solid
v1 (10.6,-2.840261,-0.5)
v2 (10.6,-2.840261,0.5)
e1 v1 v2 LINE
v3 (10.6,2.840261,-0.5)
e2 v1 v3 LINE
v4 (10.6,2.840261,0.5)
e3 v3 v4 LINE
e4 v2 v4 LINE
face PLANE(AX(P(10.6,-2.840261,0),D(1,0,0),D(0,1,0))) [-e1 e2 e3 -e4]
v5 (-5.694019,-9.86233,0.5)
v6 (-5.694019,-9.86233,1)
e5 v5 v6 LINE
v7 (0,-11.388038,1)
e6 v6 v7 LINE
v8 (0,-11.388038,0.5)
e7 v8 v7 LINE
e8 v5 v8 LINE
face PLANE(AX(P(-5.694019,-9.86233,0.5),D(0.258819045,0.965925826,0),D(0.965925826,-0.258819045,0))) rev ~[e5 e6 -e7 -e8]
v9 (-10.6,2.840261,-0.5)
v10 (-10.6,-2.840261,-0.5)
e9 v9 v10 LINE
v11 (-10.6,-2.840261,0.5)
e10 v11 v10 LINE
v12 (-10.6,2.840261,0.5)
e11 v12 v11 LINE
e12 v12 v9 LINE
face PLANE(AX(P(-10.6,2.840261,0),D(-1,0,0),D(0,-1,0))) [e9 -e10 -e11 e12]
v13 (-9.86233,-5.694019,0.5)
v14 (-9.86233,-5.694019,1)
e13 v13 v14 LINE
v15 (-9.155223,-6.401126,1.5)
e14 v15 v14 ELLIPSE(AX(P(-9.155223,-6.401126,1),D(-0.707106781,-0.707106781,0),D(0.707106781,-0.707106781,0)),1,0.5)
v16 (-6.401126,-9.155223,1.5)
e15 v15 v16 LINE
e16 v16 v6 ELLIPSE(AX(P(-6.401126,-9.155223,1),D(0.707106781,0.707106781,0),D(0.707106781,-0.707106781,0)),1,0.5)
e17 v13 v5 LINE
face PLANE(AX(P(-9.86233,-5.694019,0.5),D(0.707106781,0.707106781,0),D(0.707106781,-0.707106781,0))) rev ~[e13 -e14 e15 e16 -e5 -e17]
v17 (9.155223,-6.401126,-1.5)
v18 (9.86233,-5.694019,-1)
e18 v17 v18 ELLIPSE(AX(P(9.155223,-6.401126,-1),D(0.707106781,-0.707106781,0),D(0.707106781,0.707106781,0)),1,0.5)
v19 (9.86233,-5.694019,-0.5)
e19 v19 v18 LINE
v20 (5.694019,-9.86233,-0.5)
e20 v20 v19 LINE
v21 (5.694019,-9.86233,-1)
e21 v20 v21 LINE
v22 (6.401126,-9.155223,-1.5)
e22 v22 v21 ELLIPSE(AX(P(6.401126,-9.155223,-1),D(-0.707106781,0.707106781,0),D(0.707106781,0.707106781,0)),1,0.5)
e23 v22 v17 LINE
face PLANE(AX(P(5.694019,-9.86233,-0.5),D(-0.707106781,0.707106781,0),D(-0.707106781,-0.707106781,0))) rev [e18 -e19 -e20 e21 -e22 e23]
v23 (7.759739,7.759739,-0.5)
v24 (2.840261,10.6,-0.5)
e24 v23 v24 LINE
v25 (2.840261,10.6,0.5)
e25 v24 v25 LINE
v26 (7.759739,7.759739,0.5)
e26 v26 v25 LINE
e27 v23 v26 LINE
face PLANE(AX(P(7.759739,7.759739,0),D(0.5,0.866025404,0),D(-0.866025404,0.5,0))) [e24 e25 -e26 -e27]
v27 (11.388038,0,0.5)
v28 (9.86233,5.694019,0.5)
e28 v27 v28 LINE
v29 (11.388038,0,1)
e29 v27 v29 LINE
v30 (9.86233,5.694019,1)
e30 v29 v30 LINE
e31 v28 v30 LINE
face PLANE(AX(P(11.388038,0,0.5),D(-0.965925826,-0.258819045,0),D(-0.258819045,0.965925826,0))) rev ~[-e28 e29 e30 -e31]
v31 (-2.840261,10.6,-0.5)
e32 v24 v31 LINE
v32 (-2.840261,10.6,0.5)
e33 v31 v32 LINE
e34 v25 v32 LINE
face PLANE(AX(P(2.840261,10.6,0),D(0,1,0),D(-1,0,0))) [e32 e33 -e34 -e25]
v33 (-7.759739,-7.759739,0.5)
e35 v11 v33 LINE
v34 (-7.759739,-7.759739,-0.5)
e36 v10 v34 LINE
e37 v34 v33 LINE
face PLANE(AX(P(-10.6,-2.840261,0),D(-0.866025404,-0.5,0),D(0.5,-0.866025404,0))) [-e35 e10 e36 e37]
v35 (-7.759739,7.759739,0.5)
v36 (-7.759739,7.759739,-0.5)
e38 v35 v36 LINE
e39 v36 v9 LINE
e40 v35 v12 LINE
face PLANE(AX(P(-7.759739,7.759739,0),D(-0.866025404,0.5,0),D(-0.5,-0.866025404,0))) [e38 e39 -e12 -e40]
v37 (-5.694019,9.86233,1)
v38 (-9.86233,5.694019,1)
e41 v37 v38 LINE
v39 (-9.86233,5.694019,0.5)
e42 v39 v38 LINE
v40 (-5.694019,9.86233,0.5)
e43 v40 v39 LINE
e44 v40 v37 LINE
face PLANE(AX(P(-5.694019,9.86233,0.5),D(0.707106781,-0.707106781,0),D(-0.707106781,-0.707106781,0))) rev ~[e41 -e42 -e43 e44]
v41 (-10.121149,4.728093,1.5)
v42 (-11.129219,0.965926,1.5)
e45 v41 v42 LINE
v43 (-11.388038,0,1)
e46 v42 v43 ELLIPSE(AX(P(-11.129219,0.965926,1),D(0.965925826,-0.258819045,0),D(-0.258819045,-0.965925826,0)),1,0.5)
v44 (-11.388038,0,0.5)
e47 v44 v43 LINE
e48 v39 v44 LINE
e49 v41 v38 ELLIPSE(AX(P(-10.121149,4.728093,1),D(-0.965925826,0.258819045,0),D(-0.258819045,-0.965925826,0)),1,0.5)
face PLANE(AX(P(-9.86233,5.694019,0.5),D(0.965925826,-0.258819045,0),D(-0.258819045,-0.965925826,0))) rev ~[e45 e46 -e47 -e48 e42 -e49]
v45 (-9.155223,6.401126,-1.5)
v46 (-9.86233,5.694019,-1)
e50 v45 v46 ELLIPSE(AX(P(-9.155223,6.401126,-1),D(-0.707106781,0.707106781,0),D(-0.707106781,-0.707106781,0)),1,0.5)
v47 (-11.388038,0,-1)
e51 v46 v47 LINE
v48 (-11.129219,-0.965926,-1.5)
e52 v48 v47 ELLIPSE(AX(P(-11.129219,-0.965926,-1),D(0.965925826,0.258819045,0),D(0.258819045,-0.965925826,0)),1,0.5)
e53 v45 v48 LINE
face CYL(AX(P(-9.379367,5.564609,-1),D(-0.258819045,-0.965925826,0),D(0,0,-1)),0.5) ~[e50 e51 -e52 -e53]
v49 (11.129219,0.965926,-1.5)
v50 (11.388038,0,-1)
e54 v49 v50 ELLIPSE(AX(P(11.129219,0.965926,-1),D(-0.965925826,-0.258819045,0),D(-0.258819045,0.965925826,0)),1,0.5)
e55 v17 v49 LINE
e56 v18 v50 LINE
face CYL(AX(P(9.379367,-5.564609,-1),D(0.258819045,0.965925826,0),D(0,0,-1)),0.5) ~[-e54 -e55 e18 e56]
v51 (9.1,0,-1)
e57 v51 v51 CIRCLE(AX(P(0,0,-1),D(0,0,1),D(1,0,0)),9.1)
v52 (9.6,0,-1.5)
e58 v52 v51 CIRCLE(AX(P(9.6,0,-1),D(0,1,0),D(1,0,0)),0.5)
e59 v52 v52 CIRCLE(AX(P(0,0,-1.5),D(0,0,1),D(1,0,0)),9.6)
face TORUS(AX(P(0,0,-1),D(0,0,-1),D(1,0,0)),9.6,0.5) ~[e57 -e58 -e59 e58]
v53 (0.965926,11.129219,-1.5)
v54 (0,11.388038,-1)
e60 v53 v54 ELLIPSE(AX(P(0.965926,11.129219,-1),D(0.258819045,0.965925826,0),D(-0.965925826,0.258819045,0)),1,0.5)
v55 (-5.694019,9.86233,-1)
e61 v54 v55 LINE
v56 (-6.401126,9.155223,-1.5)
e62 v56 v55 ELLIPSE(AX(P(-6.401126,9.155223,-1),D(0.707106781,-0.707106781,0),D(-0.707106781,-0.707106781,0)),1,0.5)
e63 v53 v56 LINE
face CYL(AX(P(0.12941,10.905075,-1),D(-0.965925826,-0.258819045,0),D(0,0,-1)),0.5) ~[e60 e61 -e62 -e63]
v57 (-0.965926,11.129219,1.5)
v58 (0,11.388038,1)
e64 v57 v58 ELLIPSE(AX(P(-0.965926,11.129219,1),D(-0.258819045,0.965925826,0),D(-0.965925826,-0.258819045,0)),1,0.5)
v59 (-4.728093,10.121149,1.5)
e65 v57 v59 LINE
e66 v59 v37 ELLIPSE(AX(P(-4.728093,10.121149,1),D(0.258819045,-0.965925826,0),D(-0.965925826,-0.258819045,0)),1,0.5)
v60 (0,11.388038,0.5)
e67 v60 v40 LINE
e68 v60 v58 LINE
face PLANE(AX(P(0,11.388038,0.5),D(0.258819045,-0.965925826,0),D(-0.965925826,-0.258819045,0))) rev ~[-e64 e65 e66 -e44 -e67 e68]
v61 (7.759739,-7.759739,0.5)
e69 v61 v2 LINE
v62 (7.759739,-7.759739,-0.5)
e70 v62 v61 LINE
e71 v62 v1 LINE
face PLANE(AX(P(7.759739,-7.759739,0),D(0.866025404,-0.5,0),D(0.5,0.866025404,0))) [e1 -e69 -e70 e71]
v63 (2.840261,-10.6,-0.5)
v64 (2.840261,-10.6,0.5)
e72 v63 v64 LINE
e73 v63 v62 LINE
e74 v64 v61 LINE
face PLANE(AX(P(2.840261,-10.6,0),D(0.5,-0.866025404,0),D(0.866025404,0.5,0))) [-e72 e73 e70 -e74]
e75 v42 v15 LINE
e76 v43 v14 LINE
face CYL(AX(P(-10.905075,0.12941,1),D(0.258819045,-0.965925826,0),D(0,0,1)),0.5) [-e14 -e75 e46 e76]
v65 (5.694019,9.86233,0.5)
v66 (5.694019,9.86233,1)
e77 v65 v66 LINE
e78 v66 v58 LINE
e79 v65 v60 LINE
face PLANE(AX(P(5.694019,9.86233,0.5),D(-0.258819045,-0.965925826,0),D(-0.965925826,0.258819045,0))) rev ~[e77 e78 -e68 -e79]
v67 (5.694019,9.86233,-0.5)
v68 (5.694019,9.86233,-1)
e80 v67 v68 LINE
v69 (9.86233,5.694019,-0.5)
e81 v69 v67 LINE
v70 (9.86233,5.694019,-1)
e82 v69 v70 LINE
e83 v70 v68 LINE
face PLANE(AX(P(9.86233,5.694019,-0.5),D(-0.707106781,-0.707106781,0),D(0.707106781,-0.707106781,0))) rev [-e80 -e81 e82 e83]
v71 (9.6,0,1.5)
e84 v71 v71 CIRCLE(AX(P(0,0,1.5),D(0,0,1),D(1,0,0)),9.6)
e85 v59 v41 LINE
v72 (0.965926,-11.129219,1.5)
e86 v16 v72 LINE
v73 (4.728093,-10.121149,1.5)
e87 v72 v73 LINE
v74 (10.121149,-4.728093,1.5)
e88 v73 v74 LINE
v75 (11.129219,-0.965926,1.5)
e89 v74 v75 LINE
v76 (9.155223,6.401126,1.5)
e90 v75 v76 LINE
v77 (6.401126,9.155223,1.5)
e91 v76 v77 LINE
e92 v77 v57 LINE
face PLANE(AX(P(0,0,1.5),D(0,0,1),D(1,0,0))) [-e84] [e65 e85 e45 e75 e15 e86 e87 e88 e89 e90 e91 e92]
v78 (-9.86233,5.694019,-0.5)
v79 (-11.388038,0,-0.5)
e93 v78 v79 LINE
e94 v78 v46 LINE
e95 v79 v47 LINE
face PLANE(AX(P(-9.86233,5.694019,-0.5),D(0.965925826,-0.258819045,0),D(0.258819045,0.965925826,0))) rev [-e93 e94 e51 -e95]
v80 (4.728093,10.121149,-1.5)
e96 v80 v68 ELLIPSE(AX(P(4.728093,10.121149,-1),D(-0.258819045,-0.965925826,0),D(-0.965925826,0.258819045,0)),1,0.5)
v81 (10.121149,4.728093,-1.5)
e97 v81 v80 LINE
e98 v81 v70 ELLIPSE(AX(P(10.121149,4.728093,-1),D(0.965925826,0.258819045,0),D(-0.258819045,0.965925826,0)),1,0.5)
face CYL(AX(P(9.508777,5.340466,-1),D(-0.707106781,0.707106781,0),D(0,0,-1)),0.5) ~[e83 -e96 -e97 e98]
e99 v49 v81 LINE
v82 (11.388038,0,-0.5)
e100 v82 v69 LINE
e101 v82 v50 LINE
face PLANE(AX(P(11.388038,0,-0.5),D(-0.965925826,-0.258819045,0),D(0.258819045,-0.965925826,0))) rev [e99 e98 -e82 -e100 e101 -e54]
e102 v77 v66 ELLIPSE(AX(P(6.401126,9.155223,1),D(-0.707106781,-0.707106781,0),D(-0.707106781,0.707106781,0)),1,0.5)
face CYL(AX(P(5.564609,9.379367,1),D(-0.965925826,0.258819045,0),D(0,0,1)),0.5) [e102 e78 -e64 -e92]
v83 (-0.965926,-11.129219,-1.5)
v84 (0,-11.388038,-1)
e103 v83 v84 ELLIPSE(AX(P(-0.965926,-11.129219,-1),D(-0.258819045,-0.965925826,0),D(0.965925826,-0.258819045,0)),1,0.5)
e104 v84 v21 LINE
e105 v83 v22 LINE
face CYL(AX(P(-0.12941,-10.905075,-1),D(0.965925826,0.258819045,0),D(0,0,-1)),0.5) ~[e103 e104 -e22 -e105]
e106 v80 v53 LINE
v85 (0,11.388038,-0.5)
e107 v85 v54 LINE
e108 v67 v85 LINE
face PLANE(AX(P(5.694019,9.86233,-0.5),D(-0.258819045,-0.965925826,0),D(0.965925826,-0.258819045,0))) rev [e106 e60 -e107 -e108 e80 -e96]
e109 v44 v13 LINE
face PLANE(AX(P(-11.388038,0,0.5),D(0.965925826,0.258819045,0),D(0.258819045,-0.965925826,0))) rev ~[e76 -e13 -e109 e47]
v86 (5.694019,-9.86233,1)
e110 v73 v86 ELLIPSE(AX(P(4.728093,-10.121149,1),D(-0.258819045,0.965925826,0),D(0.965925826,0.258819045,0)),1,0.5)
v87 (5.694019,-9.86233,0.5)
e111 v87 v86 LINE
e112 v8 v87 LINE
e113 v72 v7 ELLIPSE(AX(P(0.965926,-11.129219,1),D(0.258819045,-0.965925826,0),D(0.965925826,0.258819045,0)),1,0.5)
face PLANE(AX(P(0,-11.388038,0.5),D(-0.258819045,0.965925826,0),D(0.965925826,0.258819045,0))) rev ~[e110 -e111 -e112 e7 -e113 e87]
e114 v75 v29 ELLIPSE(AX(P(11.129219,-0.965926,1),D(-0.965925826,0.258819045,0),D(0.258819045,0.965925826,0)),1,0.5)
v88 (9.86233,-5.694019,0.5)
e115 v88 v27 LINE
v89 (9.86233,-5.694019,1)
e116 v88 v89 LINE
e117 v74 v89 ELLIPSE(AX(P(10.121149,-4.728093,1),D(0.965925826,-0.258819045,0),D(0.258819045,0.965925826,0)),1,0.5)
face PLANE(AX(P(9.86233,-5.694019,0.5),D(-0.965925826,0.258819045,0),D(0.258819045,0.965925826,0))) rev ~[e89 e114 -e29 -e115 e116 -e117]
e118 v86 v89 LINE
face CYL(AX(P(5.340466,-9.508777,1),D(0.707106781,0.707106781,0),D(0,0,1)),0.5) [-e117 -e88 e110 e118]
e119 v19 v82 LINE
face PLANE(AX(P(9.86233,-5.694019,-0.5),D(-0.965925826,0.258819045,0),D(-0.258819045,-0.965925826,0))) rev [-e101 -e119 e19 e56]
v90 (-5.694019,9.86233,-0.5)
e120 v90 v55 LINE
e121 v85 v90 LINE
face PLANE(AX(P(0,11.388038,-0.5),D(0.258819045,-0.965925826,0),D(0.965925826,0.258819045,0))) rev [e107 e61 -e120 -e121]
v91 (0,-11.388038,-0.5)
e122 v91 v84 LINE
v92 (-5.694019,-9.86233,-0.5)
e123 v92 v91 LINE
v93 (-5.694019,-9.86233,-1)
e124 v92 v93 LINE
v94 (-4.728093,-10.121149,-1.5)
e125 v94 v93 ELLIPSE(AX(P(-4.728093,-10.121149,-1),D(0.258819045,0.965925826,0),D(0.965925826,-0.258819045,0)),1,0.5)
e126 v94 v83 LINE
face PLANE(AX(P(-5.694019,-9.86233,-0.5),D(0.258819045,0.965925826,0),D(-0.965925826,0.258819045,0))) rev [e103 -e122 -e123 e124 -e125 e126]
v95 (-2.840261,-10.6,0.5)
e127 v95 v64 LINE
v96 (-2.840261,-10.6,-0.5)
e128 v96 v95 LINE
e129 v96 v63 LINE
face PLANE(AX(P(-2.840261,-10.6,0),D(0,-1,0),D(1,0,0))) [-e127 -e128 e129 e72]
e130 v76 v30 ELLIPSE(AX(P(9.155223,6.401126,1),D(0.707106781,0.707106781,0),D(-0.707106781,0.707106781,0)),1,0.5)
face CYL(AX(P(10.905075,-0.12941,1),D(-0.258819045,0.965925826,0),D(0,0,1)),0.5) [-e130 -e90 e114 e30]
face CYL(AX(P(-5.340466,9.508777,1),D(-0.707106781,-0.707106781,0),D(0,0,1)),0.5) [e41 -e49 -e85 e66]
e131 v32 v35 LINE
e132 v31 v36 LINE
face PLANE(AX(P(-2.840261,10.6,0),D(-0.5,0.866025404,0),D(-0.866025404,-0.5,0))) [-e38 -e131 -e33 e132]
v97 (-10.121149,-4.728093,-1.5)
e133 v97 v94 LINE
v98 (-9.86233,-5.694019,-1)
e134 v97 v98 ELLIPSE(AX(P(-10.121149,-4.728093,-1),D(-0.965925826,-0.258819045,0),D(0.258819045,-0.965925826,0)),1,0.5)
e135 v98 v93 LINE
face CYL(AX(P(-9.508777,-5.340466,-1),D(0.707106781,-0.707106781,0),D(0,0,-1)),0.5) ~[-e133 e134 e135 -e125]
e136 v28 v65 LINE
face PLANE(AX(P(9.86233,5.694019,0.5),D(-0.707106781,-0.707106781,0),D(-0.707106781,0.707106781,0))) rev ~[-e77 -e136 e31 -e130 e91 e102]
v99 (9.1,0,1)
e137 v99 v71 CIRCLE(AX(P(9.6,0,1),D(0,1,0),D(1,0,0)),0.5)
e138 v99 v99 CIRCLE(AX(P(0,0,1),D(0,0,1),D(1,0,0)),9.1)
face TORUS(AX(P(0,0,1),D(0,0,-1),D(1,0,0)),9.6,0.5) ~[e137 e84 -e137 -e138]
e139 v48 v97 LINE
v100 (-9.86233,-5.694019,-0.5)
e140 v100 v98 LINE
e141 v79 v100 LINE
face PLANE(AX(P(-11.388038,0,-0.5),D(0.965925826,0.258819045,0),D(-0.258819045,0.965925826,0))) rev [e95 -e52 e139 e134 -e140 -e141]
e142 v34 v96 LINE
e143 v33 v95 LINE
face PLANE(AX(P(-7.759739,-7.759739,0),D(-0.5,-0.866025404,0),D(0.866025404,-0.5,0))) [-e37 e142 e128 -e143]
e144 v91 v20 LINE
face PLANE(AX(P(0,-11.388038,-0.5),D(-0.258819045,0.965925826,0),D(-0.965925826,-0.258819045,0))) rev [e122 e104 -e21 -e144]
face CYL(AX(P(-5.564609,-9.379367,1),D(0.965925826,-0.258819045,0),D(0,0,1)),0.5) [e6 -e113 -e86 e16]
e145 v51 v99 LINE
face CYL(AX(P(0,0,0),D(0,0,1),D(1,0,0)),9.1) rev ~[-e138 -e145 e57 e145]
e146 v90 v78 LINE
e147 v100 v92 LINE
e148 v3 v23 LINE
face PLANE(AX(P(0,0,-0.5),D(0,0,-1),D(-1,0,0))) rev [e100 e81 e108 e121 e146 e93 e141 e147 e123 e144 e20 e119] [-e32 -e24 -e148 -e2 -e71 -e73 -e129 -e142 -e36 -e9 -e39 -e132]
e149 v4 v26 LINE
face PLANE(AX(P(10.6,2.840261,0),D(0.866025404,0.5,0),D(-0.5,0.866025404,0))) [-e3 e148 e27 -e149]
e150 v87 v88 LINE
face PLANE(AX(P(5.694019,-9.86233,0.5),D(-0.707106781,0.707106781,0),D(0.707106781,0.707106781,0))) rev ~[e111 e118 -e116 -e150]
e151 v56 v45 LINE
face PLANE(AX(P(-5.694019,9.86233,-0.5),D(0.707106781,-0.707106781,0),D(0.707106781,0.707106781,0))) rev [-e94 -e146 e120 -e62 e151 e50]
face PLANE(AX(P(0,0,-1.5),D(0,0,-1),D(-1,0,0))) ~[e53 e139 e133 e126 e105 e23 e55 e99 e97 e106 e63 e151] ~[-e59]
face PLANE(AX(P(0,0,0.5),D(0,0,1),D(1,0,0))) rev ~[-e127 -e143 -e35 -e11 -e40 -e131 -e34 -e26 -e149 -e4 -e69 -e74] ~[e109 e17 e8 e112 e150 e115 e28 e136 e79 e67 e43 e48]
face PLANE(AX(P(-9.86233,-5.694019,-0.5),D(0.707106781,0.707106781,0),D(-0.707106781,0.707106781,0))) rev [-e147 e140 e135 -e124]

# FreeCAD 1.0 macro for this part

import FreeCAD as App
import Part
import Sketcher

V = App.Vector
Q = App.Units.Quantity


def edges_at(feature, points):
    """Names of the edges that pass closest to the given points."""
    edges = feature.Shape.Edges
    near = lambda p: min(range(len(edges)), key=lambda i: edges[i].distToShape(Part.Vertex(*p))[0])
    return sorted({f"Edge{near(p) + 1}" for p in points})

doc = App.newDocument("Part")
body = doc.addObject("PartDesign::Body", "Body")

sketch1 = body.newObject("Sketcher::SketchObject", "Sketch")
sketch1.AttachmentSupport = (doc.getObject("XY_Plane"), [""])
sketch1.MapMode = "FlatFace"
sketch1.addGeometry(Part.LineSegment(V(-10.6, -2.840261, 0), V(-7.759739, -7.759739, 0)), False)
sketch1.addGeometry(Part.LineSegment(V(-7.759739, -7.759739, 0), V(-2.840261, -10.6, 0)), False)
sketch1.addGeometry(Part.LineSegment(V(-2.840261, -10.6, 0), V(2.840261, -10.6, 0)), False)
sketch1.addGeometry(Part.LineSegment(V(2.840261, -10.6, 0), V(7.759739, -7.759739, 0)), False)
sketch1.addGeometry(Part.LineSegment(V(7.759739, -7.759739, 0), V(10.6, -2.840261, 0)), False)
sketch1.addGeometry(Part.LineSegment(V(10.6, -2.840261, 0), V(10.6, 2.840261, 0)), False)
sketch1.addGeometry(Part.LineSegment(V(10.6, 2.840261, 0), V(7.759739, 7.759739, 0)), False)
sketch1.addGeometry(Part.LineSegment(V(7.759739, 7.759739, 0), V(2.840261, 10.6, 0)), False)
sketch1.addGeometry(Part.LineSegment(V(2.840261, 10.6, 0), V(-2.840261, 10.6, 0)), False)
sketch1.addGeometry(Part.LineSegment(V(-2.840261, 10.6, 0), V(-7.759739, 7.759739, 0)), False)
sketch1.addGeometry(Part.LineSegment(V(-7.759739, 7.759739, 0), V(-10.6, 2.840261, 0)), False)
sketch1.addGeometry(Part.LineSegment(V(-10.6, 2.840261, 0), V(-10.6, -2.840261, 0)), False)
sketch1.addConstraint(Sketcher.Constraint("Coincident", 0, 2, 1, 1))
sketch1.addConstraint(Sketcher.Constraint("Coincident", 1, 2, 2, 1))
sketch1.addConstraint(Sketcher.Constraint("Coincident", 2, 2, 3, 1))
sketch1.addConstraint(Sketcher.Constraint("Coincident", 3, 2, 4, 1))
sketch1.addConstraint(Sketcher.Constraint("Coincident", 4, 2, 5, 1))
sketch1.addConstraint(Sketcher.Constraint("Coincident", 5, 2, 6, 1))
sketch1.addConstraint(Sketcher.Constraint("Coincident", 6, 2, 7, 1))
sketch1.addConstraint(Sketcher.Constraint("Coincident", 7, 2, 8, 1))
sketch1.addConstraint(Sketcher.Constraint("Coincident", 8, 2, 9, 1))
sketch1.addConstraint(Sketcher.Constraint("Coincident", 9, 2, 10, 1))
sketch1.addConstraint(Sketcher.Constraint("Coincident", 10, 2, 11, 1))
sketch1.addConstraint(Sketcher.Constraint("Coincident", 11, 2, 0, 1))
sketch1.addConstraint(Sketcher.Constraint("Horizontal", 2))
sketch1.addConstraint(Sketcher.Constraint("Vertical", 5))
sketch1.addConstraint(Sketcher.Constraint("Horizontal", 8))
sketch1.addConstraint(Sketcher.Constraint("Vertical", 11))
sketch1.addConstraint(Sketcher.Constraint("Symmetric", 0, 2, 6, 2, -1, 1))
sketch1.addConstraint(Sketcher.Constraint("Symmetric", 1, 2, 7, 2, -1, 1))
sketch1.addConstraint(Sketcher.Constraint("Symmetric", 3, 2, 9, 2, -1, 1))
sketch1.addConstraint(Sketcher.Constraint("Symmetric", 4, 2, 10, 2, -1, 1))
sketch1.addConstraint(Sketcher.Constraint("Symmetric", 0, 2, 3, 2, -2))
sketch1.addConstraint(Sketcher.Constraint("Perpendicular", 0, 3))
sketch1.addConstraint(Sketcher.Constraint("Perpendicular", 1, 4))
sketch1.addConstraint(Sketcher.Constraint("Perpendicular", 3, 6))
sketch1.addConstraint(Sketcher.Constraint("Perpendicular", 6, 9))
sketch1.addConstraint(Sketcher.Constraint("Horizontal", 5, 2, 10, 2))
sketch1.addConstraint(Sketcher.Constraint("Equal", 8, 5))
sketch1.addConstraint(Sketcher.Constraint("Equal", 0, 1))
sketch1.addConstraint(Sketcher.Constraint("Angle", 0, Q("-60 deg")))
sketch1.addConstraint(Sketcher.Constraint("DistanceY", 1, 2, -1, 1, 10.6))
sketch1.addConstraint(Sketcher.Constraint("DistanceX", 0, 2, 2, 2, 10.6))
pad1 = body.newObject("PartDesign::Pad", "Pad")
pad1.Profile = sketch1
pad1.Length = 1
pad1.Midplane = True

sketch2 = body.newObject("Sketcher::SketchObject", "Sketch001")
sketch2.AttachmentSupport = (doc.getObject("XY_Plane"), [""])
sketch2.MapMode = "FlatFace"
sketch2.AttachmentOffset = App.Placement(V(0, 0, 0.5), App.Rotation())
sketch2.addGeometry(Part.LineSegment(V(-9.86233, 5.694019, 0), V(-11.388038, 0, 0)), False)
sketch2.addGeometry(Part.LineSegment(V(-11.388038, 0, 0), V(-9.86233, -5.694019, 0)), False)
sketch2.addGeometry(Part.LineSegment(V(-9.86233, -5.694019, 0), V(-5.694019, -9.86233, 0)), False)
sketch2.addGeometry(Part.LineSegment(V(-5.694019, -9.86233, 0), V(0, -11.388038, 0)), False)
sketch2.addGeometry(Part.LineSegment(V(0, -11.388038, 0), V(5.694019, -9.86233, 0)), False)
sketch2.addGeometry(Part.LineSegment(V(5.694019, -9.86233, 0), V(9.86233, -5.694019, 0)), False)
sketch2.addGeometry(Part.LineSegment(V(9.86233, -5.694019, 0), V(11.388038, 0, 0)), False)
sketch2.addGeometry(Part.LineSegment(V(11.388038, 0, 0), V(9.86233, 5.694019, 0)), False)
sketch2.addGeometry(Part.LineSegment(V(9.86233, 5.694019, 0), V(5.694019, 9.86233, 0)), False)
sketch2.addGeometry(Part.LineSegment(V(5.694019, 9.86233, 0), V(0, 11.388038, 0)), False)
sketch2.addGeometry(Part.LineSegment(V(0, 11.388038, 0), V(-5.694019, 9.86233, 0)), False)
sketch2.addGeometry(Part.LineSegment(V(-5.694019, 9.86233, 0), V(-9.86233, 5.694019, 0)), False)
sketch2.addConstraint(Sketcher.Constraint("Coincident", 0, 2, 1, 1))
sketch2.addConstraint(Sketcher.Constraint("Coincident", 1, 2, 2, 1))
sketch2.addConstraint(Sketcher.Constraint("Coincident", 2, 2, 3, 1))
sketch2.addConstraint(Sketcher.Constraint("Coincident", 3, 2, 4, 1))
sketch2.addConstraint(Sketcher.Constraint("Coincident", 4, 2, 5, 1))
sketch2.addConstraint(Sketcher.Constraint("Coincident", 5, 2, 6, 1))
sketch2.addConstraint(Sketcher.Constraint("Coincident", 6, 2, 7, 1))
sketch2.addConstraint(Sketcher.Constraint("Coincident", 7, 2, 8, 1))
sketch2.addConstraint(Sketcher.Constraint("Coincident", 8, 2, 9, 1))
sketch2.addConstraint(Sketcher.Constraint("Coincident", 9, 2, 10, 1))
sketch2.addConstraint(Sketcher.Constraint("Coincident", 10, 2, 11, 1))
sketch2.addConstraint(Sketcher.Constraint("Coincident", 11, 2, 0, 1))
sketch2.addConstraint(Sketcher.Constraint("Symmetric", 0, 2, 6, 2, -1, 1))
sketch2.addConstraint(Sketcher.Constraint("Symmetric", 1, 2, 7, 2, -1, 1))
sketch2.addConstraint(Sketcher.Constraint("Symmetric", 2, 2, 8, 2, -1, 1))
sketch2.addConstraint(Sketcher.Constraint("Symmetric", 3, 2, 9, 2, -1, 1))
sketch2.addConstraint(Sketcher.Constraint("Symmetric", 4, 2, 10, 2, -1, 1))
sketch2.addConstraint(Sketcher.Constraint("Symmetric", 5, 2, 11, 2, -1, 1))
sketch2.addConstraint(Sketcher.Constraint("Symmetric", 2, 2, 4, 2, -2))
sketch2.addConstraint(Sketcher.Constraint("Symmetric", 1, 2, 5, 2, -2))
sketch2.addConstraint(Sketcher.Constraint("PointOnObject", 0, 2, -1))
sketch2.addConstraint(Sketcher.Constraint("PointOnObject", 3, 2, -2))
sketch2.addConstraint(Sketcher.Constraint("Perpendicular", 0, 3))
sketch2.addConstraint(Sketcher.Constraint("Perpendicular", 2, 5))
sketch2.addConstraint(Sketcher.Constraint("Equal", 1, 2))
sketch2.addConstraint(Sketcher.Constraint("Equal", 2, 3))
sketch2.addConstraint(Sketcher.Constraint("Angle", 0, Q("-105 deg")))
sketch2.addConstraint(Sketcher.Constraint("DistanceX", 1, 2, -1, 1, 9.86233))
pad2 = body.newObject("PartDesign::Pad", "Pad001")
pad2.Profile = sketch2
pad2.Length = 1
body2 = doc.addObject("PartDesign::Body", "Body001")
doc.recompute()

body2.BaseFeature = body
doc.recompute()

mirroring = doc.addObject("Part::Mirroring", "Mirroring")
mirroring.Source = body
mirroring.Base = V(0, 0, 0)
mirroring.Normal = V(0, 0, 1)
body3 = doc.addObject("PartDesign::Body", "Body002")
body3.BaseFeature = mirroring
boolean = body2.newObject("PartDesign::Boolean", "Boolean")
boolean.Type = "Fuse"
boolean.addObjects([body3])
doc.recompute()

sketch3 = body2.newObject("Sketcher::SketchObject", "Sketch002")
sketch3.AttachmentSupport = (doc.getObject("XY_Plane001"), [""])
sketch3.MapMode = "FlatFace"
sketch3.addGeometry(Part.Circle(V(0, 0, 0), V(0, 0, 1), 9.1), False)
sketch3.addConstraint(Sketcher.Constraint("Coincident", 0, 3, -1, 1))
sketch3.addConstraint(Sketcher.Constraint("Diameter", 0, 18.2))
pocket1 = body2.newObject("PartDesign::Pocket", "Pocket")
pocket1.Profile = sketch3
pocket1.Length = 5
pocket1.Midplane = True
doc.recompute()

fillet = body2.newObject("PartDesign::Fillet", "Fillet")
fillet.Base = (pocket1, edges_at(pocket1, [(-9.1, 0, -1.5), (9.1, 0, 0), (-9.1, 0, 1.5)]))
fillet.Radius = 0.5
doc.recompute()

fillet2 = body2.newObject("PartDesign::Fillet", "Fillet001")
fillet2.Base = (fillet, edges_at(fillet, [
    (10.625, -2.847, -1.5),
    (7.778, 7.778, -1.5),
    (-2.847, 10.625, -1.5),
    (-10.625, 2.847, -1.5),
    (-7.778, -7.778, -1.5),
    (2.847, -10.625, -1.5),
    (-2.847, -10.625, 1.5),
    (7.778, -7.778, 1.5),
    (10.625, 2.847, 1.5),
    (2.847, 10.625, 1.5),
    (-7.778, 7.778, 1.5),
    (-10.625, -2.847, 1.5),
]))
fillet2.Radius = 0.5
mirroring.Visibility = False

doc.recompute()
